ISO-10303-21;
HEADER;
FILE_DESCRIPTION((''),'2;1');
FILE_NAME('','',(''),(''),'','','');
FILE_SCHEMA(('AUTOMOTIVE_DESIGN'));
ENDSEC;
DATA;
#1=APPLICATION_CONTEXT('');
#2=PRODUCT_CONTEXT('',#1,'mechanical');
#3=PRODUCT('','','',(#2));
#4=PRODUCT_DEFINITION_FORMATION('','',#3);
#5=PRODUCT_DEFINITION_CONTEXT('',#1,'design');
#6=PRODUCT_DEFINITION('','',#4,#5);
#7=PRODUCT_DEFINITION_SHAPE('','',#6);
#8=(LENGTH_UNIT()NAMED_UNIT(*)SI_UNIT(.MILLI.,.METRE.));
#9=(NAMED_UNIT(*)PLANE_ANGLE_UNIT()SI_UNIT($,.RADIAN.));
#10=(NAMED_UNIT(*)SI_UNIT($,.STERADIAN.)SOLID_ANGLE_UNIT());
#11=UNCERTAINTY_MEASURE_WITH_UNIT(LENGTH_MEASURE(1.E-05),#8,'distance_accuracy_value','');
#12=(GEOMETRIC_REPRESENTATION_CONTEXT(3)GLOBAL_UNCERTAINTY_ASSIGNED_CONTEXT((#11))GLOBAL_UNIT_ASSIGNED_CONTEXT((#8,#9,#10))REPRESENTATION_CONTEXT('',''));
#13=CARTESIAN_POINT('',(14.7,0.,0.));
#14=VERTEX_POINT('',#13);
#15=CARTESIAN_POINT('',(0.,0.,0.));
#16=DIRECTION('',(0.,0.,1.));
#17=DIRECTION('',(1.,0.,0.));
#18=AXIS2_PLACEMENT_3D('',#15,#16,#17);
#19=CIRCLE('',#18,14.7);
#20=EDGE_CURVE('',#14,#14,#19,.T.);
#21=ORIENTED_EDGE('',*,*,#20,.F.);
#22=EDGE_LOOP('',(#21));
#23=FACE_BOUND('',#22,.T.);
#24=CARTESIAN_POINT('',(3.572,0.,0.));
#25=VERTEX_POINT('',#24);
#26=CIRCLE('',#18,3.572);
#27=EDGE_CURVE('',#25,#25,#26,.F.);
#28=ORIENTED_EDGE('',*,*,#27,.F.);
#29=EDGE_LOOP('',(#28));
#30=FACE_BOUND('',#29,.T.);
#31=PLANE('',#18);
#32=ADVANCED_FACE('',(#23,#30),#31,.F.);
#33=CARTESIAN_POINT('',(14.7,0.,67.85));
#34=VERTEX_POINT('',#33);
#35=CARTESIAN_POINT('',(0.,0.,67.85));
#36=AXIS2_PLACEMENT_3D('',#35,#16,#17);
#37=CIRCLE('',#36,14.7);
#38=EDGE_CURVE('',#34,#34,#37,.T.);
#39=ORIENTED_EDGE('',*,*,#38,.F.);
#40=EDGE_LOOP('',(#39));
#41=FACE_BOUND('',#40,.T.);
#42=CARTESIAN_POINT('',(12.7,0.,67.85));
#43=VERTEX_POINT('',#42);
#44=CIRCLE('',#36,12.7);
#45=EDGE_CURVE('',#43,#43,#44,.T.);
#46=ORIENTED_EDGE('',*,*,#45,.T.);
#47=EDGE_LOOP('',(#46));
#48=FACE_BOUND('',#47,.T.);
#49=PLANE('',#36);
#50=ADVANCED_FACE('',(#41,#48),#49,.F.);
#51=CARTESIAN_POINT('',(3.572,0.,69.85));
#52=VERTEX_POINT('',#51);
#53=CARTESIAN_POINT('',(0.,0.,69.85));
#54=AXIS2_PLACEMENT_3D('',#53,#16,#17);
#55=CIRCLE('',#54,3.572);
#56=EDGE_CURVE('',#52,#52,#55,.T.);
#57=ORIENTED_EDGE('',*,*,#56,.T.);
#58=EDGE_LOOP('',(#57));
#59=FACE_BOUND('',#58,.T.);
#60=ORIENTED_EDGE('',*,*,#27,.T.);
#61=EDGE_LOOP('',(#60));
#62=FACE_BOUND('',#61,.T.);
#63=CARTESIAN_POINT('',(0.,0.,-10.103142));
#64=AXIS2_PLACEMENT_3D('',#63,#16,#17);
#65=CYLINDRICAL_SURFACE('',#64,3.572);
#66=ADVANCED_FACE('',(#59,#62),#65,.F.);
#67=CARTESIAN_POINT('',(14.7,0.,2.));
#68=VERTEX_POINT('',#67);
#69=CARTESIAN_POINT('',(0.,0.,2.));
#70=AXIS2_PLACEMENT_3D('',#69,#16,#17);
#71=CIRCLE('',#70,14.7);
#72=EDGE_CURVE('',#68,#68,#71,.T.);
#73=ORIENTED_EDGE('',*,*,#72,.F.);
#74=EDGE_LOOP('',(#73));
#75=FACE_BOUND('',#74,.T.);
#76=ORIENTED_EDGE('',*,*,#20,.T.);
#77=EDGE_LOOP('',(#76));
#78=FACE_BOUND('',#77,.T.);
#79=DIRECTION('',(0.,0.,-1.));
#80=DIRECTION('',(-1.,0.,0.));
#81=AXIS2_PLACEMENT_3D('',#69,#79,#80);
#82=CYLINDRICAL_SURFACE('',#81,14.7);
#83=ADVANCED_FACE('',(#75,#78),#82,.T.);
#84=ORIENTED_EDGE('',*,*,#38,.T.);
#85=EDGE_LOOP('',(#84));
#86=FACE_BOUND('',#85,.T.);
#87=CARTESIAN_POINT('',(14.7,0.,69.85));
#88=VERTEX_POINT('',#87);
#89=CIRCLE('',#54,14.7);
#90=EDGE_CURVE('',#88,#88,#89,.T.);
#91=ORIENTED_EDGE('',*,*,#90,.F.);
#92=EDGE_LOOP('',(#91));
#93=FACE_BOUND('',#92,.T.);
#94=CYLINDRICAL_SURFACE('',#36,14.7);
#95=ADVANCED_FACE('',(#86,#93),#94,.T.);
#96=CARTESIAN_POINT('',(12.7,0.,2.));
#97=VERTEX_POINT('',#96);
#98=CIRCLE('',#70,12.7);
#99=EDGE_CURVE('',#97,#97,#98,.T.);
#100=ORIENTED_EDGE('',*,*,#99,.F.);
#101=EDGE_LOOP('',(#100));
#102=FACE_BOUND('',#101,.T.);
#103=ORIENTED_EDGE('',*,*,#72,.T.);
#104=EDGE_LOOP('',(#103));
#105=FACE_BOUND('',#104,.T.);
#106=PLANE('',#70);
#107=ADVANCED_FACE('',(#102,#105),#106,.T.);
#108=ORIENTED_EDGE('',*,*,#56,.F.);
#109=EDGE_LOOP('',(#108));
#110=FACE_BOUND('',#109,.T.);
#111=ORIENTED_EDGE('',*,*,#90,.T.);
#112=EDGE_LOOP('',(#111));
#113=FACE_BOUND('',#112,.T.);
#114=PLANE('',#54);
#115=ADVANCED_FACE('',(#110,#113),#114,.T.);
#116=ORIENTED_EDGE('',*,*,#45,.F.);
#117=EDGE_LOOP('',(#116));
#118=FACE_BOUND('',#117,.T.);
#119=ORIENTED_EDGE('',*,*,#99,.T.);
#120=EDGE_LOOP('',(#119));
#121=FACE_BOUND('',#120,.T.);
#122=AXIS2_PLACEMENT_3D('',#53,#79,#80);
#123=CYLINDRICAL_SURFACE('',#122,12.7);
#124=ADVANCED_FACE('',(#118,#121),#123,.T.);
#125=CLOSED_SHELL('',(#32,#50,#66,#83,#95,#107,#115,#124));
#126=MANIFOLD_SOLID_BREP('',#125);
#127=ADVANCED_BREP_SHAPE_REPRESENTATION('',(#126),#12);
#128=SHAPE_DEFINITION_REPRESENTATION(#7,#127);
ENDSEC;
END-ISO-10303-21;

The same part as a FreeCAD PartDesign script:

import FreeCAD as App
import Part
import Sketcher

V = App.Vector

doc = App.newDocument("Part")
body = doc.addObject("PartDesign::Body", "Body")

# Sketch on XY plane
sketch1 = body.newObject("Sketcher::SketchObject", "Sketch")
sketch1.AttachmentSupport = (doc.getObject("XY_Plane"), [""])
sketch1.MapMode = "FlatFace"
sketch1.addGeometry(Part.Circle(V(0, 0, 0), V(0, 0, 1), 13), False)
sketch1.addConstraint(Sketcher.Constraint("Coincident", 0, 3, -1, 1))
sketch1.addConstraint(Sketcher.Constraint("Diameter", 0, 25.4))
pad1 = body.newObject("PartDesign::Pad", "Pad")
pad1.Profile = sketch1
pad1.Length = 69.85

# Sketch on XY plane
sketch2 = body.newObject("Sketcher::SketchObject", "Sketch001")
sketch2.AttachmentSupport = (doc.getObject("XY_Plane"), [""])
sketch2.MapMode = "FlatFace"
sketch2.AttachmentOffset = App.Placement(V(0, 0, 69.85), App.Rotation())
sketch2.addGeometry(Part.Circle(V(0, 0, 0), V(0, 0, 1), 3.6), False)
sketch2.addConstraint(Sketcher.Constraint("Coincident", 0, 3, -1, 1))
sketch2.addConstraint(Sketcher.Constraint("Diameter", 0, 7.144))
pocket1 = body.newObject("PartDesign::Pocket", "Pocket")
pocket1.Profile = sketch2
pocket1.Length = 69.85

# Sketch on XY plane
sketch3 = body.newObject("Sketcher::SketchObject", "Sketch002")
sketch3.AttachmentSupport = (doc.getObject("XY_Plane"), [""])
sketch3.MapMode = "FlatFace"
sketch3.AttachmentOffset = App.Placement(V(0, 0, 2), App.Rotation())
sketch3.addGeometry(Part.Circle(V(0, 0, 0), V(0, 0, 1), 14.7), False)
sketch3.addGeometry(Part.Circle(V(0, 0, 0), V(0, 0, 1), 3.6), False)
sketch3.addConstraint(Sketcher.Constraint("Coincident", 0, 3, -1, 1))
sketch3.addConstraint(Sketcher.Constraint("Coincident", 1, 3, -1, 1))
sketch3.addConstraint(Sketcher.Constraint("Diameter", 0, 29.4))
sketch3.addConstraint(Sketcher.Constraint("Diameter", 1, 7.144))
pad2 = body.newObject("PartDesign::Pad", "Pad001")
pad2.Profile = sketch3
pad2.Length = 2
pad2.Reversed = True

# Sketch on XY plane
sketch4 = body.newObject("Sketcher::SketchObject", "Sketch003")
sketch4.AttachmentSupport = (doc.getObject("XY_Plane"), [""])
sketch4.MapMode = "FlatFace"
sketch4.AttachmentOffset = App.Placement(V(0, 0, 69.85), App.Rotation())
sketch4.addGeometry(Part.Circle(V(0, 0, 0), V(0, 0, 1), 14.7), False)
sketch4.addGeometry(Part.Circle(V(0, 0, 0), V(0, 0, 1), 3.6), False)
sketch4.addConstraint(Sketcher.Constraint("Coincident", 0, 3, -1, 1))
sketch4.addConstraint(Sketcher.Constraint("Coincident", 1, 3, -1, 1))
sketch4.addConstraint(Sketcher.Constraint("Diameter", 0, 29.4))
sketch4.addConstraint(Sketcher.Constraint("Diameter", 1, 7.144))
pad3 = body.newObject("PartDesign::Pad", "Pad002")
pad3.Profile = sketch4
pad3.Length = 2
pad3.Reversed = True

doc.recompute()
